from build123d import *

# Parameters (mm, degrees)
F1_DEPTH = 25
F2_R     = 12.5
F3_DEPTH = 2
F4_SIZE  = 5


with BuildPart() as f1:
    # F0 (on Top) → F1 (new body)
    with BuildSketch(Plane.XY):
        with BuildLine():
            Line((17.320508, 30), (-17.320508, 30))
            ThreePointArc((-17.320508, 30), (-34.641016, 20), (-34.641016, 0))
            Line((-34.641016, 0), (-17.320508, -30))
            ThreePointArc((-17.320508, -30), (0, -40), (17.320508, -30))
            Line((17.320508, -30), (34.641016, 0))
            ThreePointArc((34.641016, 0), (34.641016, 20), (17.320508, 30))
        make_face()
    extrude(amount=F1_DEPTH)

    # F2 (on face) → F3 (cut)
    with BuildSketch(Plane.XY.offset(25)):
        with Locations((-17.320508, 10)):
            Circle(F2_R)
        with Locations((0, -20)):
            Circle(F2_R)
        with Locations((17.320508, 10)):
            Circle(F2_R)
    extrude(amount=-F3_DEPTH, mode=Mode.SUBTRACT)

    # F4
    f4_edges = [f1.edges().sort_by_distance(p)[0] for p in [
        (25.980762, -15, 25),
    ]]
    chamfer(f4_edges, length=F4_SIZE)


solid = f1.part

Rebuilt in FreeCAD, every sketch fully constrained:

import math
import FreeCAD as App
import Part
import Sketcher

V = App.Vector
Q = App.Units.Quantity


def edges_at(feature, points):
    """Names of the edges that pass closest to the given points."""
    edges = feature.Shape.Edges
    near = lambda p: min(range(len(edges)), key=lambda i: edges[i].distToShape(Part.Vertex(*p))[0])
    return sorted({f"Edge{near(p) + 1}" for p in points})

doc = App.newDocument("Part")
body = doc.addObject("PartDesign::Body", "Body")

# Sketch on XY plane
sketch1 = body.newObject("Sketcher::SketchObject", "Sketch")
sketch1.AttachmentSupport = (doc.getObject("XY_Plane"), [""])
sketch1.MapMode = "FlatFace"
sketch1.addGeometry([
    Part.LineSegment(V(17, 30, 0), V(-17, 30, 0)),  # 0
    Part.ArcOfCircle(Part.Circle(V(-17, 10, 0), V(0, 0, 1), 20), math.radians(90), math.radians(210)),  # 1
    Part.LineSegment(V(-35, 0, 0), V(-17, -30, 0)),  # 2
    Part.ArcOfCircle(Part.Circle(V(0, -20, 0), V(0, 0, 1), 20), math.radians(-150), math.radians(-30)),  # 3
    Part.LineSegment(V(17, -30, 0), V(35, 0, 0)),  # 4
    Part.ArcOfCircle(Part.Circle(V(17, 10, 0), V(0, 0, 1), 20), math.radians(-30), math.radians(90)),  # 5
], False)
sketch1.addConstraint([
    Sketcher.Constraint("Tangent", 0, 2, 1, 1),
    Sketcher.Constraint("Tangent", 1, 2, 2, 1),
    Sketcher.Constraint("Tangent", 2, 2, 3, 1),
    Sketcher.Constraint("Tangent", 3, 2, 4, 1),
    Sketcher.Constraint("Tangent", 4, 2, 5, 1),
    Sketcher.Constraint("Tangent", 5, 2, 0, 1),
    Sketcher.Constraint("Horizontal", 0),
    Sketcher.Constraint("Equal", 1, 3),
    Sketcher.Constraint("Equal", 3, 5),
    Sketcher.Constraint("Symmetric", 0, 2, 3, 2, -1, 1),
    Sketcher.Constraint("Symmetric", 1, 2, 4, 2, -1, 1),
    Sketcher.Constraint("PointOnObject", 3, 3, -2),
    Sketcher.Constraint("Radius", 1, Q("20 mm")),
])
pad1 = body.newObject("PartDesign::Pad", "Pad")
pad1.Profile = sketch1
pad1.Length = 25

# Sketch on XY plane
sketch2 = body.newObject("Sketcher::SketchObject", "Sketch001")
sketch2.AttachmentSupport = (doc.getObject("XY_Plane"), [""])
sketch2.MapMode = "FlatFace"
sketch2.AttachmentOffset = App.Placement(V(0, 0, 25), App.Rotation())
sketch2.addGeometry([
    Part.Circle(V(-17, 10, 0), V(0, 0, 1), 12),
    Part.Circle(V(0, -20, 0), V(0, 0, 1), 12),
    Part.Circle(V(17, 10, 0), V(0, 0, 1), 12),
], False)
sketch2.addConstraint([
    Sketcher.Constraint("Equal", 0, 1),
    Sketcher.Constraint("Equal", 1, 2),
    Sketcher.Constraint("Symmetric", 0, 3, 2, 3, -2),
    Sketcher.Constraint("PointOnObject", 1, 3, -2),
    Sketcher.Constraint("Diameter", 0, Q("25 mm")),
    Sketcher.Constraint("DistanceY", -1, 1, 0, 3, Q("10 mm")),
    Sketcher.Constraint("DistanceY", 1, 3, -1, 1, Q("20 mm")),
    Sketcher.Constraint("DistanceX", 0, 3, -1, 1, Q("17.320508 mm")),
])
pocket1 = body.newObject("PartDesign::Pocket", "Pocket")
pocket1.Profile = sketch2
pocket1.Length = 2
doc.recompute()

chamfer = body.newObject("PartDesign::Chamfer", "Chamfer")
chamfer.Base = (pocket1, edges_at(pocket1, [(25.981, -15, 25)]))
chamfer.Size = 5

doc.recompute()
